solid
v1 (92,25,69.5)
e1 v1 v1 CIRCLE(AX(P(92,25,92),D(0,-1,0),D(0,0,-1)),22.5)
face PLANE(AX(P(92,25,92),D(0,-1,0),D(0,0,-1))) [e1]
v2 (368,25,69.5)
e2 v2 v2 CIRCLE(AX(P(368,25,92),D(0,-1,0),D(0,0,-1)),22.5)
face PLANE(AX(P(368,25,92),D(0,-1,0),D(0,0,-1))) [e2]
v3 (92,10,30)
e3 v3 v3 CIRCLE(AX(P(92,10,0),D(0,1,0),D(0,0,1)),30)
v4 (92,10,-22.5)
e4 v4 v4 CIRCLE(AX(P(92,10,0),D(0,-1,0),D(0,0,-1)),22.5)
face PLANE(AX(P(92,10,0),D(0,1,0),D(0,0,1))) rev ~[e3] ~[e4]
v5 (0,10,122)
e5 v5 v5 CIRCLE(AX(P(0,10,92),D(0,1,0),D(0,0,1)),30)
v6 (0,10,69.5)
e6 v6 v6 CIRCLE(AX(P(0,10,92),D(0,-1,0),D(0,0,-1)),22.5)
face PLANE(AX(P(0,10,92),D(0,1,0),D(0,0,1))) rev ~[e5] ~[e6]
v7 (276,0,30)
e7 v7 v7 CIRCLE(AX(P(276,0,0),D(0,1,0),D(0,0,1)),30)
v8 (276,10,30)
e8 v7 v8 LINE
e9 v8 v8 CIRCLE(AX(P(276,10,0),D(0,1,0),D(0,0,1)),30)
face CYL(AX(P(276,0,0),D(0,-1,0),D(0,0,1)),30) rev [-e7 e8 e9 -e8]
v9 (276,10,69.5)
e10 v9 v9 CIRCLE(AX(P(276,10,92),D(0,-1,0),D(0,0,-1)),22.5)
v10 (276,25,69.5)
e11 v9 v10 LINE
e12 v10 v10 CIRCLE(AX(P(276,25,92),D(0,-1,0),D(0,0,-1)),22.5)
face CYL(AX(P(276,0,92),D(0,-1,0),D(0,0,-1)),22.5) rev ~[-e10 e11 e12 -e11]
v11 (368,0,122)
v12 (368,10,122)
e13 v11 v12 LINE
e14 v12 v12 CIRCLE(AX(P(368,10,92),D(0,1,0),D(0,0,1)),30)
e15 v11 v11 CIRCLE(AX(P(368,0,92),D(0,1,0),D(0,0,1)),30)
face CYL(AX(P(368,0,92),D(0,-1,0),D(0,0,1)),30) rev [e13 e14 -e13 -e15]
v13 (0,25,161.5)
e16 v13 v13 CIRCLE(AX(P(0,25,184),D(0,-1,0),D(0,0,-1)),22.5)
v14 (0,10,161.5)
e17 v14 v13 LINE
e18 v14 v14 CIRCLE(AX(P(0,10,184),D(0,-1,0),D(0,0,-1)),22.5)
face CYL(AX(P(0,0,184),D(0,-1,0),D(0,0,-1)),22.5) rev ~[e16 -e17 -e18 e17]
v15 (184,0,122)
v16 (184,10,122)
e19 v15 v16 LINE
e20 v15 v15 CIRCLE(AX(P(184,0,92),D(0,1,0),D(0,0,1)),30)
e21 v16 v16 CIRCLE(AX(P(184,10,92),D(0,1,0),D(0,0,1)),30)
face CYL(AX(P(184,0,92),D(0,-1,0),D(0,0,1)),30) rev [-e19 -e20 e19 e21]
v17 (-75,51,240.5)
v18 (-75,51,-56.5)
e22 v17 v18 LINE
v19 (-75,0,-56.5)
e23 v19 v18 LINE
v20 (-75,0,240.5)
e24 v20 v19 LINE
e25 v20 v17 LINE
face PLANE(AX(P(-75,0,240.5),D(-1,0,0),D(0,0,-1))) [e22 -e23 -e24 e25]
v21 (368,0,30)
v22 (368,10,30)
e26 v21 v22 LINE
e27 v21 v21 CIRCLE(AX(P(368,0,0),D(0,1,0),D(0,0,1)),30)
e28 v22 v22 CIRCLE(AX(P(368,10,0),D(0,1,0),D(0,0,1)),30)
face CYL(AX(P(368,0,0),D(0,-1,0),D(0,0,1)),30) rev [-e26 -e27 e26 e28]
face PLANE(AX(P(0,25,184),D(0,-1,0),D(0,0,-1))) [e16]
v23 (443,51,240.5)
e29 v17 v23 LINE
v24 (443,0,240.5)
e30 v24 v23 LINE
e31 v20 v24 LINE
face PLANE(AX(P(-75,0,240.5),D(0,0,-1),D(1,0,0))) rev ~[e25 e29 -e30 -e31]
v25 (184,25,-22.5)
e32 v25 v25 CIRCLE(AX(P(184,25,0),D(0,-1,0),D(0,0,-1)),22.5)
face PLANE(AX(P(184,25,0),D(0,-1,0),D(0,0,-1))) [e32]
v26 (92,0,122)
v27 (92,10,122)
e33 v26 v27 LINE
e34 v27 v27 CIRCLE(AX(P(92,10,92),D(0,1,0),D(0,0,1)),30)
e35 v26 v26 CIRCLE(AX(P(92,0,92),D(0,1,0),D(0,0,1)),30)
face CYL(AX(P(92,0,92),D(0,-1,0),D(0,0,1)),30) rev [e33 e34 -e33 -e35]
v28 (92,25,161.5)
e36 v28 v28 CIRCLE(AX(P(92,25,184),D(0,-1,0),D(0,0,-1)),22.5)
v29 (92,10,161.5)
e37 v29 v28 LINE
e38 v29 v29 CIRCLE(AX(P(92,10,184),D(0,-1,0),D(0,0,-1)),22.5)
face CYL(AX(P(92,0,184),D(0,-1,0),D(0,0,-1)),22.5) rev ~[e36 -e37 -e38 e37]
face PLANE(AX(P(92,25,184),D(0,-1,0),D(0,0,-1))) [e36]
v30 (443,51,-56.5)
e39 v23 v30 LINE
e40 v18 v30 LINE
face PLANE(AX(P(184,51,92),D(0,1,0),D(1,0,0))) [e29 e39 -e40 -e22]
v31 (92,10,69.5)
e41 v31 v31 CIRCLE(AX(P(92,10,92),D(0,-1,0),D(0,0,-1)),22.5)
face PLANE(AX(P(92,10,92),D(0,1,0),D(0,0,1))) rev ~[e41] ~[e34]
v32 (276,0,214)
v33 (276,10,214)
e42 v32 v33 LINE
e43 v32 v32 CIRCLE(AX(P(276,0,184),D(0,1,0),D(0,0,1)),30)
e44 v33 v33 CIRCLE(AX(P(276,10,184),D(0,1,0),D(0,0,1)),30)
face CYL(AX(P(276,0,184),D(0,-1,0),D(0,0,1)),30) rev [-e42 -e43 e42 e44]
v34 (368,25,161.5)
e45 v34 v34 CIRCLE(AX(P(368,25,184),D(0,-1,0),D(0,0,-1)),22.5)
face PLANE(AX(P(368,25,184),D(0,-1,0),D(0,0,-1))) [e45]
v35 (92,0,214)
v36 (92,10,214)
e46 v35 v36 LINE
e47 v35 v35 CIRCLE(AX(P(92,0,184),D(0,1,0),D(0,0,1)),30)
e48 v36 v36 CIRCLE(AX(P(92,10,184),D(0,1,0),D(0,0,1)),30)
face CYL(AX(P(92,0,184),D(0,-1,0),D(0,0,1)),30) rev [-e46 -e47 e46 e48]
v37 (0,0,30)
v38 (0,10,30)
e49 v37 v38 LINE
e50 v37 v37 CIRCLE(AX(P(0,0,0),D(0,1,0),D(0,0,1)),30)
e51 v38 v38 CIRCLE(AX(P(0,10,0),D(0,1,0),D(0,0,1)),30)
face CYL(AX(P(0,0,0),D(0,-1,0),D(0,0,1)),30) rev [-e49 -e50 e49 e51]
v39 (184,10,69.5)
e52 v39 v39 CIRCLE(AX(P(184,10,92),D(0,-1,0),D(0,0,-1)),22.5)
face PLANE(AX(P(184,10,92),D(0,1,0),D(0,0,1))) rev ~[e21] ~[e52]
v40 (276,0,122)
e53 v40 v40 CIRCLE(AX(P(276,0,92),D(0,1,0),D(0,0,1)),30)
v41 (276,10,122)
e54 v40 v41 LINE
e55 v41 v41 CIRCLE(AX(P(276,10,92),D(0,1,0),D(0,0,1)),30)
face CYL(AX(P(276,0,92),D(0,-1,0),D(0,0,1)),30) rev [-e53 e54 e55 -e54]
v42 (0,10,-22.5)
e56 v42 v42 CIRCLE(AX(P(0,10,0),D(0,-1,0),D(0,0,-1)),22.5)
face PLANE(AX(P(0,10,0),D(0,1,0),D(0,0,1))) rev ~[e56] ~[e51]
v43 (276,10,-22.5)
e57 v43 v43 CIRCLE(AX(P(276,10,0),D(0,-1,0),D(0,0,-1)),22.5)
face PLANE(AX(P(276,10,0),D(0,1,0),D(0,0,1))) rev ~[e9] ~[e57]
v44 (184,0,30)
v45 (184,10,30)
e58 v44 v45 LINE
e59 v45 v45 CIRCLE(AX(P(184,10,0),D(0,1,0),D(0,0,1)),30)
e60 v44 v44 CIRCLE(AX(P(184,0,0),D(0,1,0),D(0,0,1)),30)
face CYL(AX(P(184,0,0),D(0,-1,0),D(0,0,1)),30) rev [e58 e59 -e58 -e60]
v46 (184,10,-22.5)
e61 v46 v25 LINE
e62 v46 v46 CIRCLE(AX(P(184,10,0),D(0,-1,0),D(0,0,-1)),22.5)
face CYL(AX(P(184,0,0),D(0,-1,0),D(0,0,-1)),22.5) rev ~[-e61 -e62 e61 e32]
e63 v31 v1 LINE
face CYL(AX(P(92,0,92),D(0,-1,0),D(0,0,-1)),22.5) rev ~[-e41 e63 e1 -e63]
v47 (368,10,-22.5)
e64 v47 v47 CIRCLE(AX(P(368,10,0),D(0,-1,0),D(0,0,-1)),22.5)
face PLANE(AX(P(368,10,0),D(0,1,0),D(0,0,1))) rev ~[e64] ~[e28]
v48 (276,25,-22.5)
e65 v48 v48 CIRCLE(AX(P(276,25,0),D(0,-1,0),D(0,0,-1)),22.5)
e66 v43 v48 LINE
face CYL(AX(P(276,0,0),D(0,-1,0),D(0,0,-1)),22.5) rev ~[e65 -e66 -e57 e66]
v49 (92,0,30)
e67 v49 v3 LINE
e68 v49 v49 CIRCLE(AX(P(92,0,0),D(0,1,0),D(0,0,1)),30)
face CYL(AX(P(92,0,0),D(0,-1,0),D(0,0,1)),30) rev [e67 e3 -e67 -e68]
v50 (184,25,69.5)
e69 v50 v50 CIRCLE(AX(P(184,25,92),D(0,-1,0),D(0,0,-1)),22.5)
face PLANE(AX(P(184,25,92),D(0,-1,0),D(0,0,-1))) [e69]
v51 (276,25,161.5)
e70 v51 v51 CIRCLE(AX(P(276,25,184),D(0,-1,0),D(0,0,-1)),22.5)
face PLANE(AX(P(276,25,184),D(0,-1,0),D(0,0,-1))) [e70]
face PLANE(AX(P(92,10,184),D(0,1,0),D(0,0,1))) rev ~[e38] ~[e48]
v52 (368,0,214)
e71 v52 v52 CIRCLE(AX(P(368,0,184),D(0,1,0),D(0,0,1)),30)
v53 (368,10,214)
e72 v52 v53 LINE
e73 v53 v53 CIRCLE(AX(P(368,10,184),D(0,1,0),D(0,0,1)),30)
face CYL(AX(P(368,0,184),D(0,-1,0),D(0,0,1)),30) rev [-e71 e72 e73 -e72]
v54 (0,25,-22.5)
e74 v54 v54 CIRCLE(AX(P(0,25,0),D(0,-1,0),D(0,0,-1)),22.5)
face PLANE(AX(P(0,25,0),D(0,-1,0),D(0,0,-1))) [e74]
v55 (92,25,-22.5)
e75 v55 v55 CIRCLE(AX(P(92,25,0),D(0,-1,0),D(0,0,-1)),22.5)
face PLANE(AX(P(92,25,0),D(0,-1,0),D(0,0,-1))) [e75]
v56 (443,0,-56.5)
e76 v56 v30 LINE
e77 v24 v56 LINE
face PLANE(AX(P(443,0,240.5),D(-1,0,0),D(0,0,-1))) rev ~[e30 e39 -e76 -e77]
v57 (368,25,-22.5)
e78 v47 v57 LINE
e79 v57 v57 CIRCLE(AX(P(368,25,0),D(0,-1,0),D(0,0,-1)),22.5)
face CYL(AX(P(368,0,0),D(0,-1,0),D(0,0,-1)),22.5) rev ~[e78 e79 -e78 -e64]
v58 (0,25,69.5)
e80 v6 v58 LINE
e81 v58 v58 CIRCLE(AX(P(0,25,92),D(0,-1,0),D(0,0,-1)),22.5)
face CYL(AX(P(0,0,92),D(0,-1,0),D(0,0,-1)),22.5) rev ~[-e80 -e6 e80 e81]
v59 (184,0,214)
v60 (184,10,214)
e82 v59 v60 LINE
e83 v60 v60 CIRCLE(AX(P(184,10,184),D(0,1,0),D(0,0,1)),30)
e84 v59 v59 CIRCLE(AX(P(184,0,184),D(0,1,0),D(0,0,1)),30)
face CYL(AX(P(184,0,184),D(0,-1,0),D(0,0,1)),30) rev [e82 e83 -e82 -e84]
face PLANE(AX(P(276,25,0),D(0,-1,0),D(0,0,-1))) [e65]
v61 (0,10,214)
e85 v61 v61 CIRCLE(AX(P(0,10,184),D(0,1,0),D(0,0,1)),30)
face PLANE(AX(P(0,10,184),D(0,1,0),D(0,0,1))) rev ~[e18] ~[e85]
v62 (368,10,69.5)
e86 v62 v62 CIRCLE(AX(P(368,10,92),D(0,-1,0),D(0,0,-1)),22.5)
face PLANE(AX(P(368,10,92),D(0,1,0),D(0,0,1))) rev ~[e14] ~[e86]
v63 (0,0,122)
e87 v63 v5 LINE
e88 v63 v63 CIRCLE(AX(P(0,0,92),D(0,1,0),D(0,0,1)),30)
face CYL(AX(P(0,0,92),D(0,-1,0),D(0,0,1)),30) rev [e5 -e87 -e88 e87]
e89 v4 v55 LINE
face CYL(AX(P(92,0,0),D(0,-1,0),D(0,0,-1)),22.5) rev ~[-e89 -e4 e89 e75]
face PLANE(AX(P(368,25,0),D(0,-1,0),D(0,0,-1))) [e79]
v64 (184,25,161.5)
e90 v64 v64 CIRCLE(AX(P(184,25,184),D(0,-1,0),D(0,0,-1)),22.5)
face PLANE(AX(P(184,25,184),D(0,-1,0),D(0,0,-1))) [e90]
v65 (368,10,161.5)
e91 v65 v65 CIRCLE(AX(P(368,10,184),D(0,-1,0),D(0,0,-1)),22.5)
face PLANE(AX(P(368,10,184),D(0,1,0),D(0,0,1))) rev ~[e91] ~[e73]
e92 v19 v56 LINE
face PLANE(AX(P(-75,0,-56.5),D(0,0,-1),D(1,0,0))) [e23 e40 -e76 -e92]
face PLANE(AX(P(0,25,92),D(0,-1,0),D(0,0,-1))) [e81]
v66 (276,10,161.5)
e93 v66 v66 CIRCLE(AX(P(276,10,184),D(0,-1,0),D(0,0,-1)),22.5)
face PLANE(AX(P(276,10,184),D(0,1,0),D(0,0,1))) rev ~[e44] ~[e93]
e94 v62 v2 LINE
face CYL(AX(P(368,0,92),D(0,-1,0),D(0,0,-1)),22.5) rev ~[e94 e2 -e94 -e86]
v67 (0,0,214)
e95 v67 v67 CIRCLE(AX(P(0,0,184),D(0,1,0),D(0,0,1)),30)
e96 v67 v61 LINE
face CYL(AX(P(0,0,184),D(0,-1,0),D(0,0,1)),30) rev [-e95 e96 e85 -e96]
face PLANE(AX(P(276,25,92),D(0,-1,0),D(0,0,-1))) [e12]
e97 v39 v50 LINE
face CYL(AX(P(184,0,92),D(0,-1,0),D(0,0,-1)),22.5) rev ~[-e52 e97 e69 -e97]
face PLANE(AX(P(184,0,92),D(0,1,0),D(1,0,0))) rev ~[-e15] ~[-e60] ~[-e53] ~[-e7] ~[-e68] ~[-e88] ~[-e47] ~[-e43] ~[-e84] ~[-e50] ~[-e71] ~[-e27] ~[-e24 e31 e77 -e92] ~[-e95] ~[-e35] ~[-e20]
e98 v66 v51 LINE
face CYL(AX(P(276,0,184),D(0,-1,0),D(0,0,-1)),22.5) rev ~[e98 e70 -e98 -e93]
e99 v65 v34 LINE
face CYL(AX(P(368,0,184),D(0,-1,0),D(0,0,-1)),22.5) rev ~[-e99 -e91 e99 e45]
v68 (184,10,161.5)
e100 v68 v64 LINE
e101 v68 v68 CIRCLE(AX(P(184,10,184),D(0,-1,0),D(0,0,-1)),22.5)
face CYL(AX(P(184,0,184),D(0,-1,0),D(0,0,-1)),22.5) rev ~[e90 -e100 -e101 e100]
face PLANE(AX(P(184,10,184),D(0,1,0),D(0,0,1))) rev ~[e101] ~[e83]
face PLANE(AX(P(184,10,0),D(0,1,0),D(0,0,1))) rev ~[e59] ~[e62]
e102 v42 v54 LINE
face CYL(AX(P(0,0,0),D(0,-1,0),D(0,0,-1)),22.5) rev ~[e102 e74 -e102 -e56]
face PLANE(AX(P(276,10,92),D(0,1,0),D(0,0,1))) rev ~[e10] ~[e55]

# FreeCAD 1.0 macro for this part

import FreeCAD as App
import Part
import Sketcher


def add_polygon(sketch, points):
    """Adds a closed chain of lines whose ends are joined by coincident constraints."""
    first, n = sketch.GeometryCount, len(points)
    for a, b in zip(points, points[1:] + points[:1]):
        sketch.addGeometry(Part.LineSegment(App.Vector(*a, 0), App.Vector(*b, 0)), False)
    for i in range(n):
        sketch.addConstraint(Sketcher.Constraint("Coincident", first + i, 2, first + (i + 1) % n, 1))

doc = App.newDocument("Part")
body = doc.addObject("PartDesign::Body", "Body")

# Sketch on XZ plane
sketch1 = body.newObject("Sketcher::SketchObject", "Sketch")
sketch1.AttachmentSupport = (doc.getObject("XZ_Plane"), [""])
sketch1.MapMode = "FlatFace"
add_polygon(sketch1, [(-75, -56), (-75, 240), (443, 240), (443, -56)])  # lines 0-3
sketch1.addConstraint([
    Sketcher.Constraint("Vertical", 0),
    Sketcher.Constraint("Horizontal", 1),
    Sketcher.Constraint("Vertical", 2),
    Sketcher.Constraint("Horizontal", 3),
    Sketcher.Constraint("DistanceX", 1, 1, 1, 2, 518.0),
    Sketcher.Constraint("DistanceY", 0, 1, 0, 2, 297.0),
    Sketcher.Constraint("DistanceX", 0, 2, -1, 1, 75.0),
    Sketcher.Constraint("DistanceY", -1, 1, 0, 2, 240.5),
])
pad1 = body.newObject("PartDesign::Pad", "Pad")
pad1.Profile = sketch1
pad1.Length = 51
pad1.Reversed = True

# Sketch on XZ plane
sketch2 = body.newObject("Sketcher::SketchObject", "Sketch001")
sketch2.AttachmentSupport = (doc.getObject("XZ_Plane"), [""])
sketch2.MapMode = "FlatFace"
sketch2.addGeometry([
    Part.Circle(App.Vector(0, 0, 0), App.Vector(0, 0, 1), 30),  # 0
    Part.Circle(App.Vector(92, 0, 0), App.Vector(0, 0, 1), 30),  # 1
    Part.Circle(App.Vector(184, 0, 0), App.Vector(0, 0, 1), 30),  # 2
    Part.Circle(App.Vector(276, 0, 0), App.Vector(0, 0, 1), 30),  # 3
    Part.Circle(App.Vector(368, 0, 0), App.Vector(0, 0, 1), 30),  # 4
    Part.Circle(App.Vector(0, 92, 0), App.Vector(0, 0, 1), 30),  # 5
    Part.Circle(App.Vector(92, 92, 0), App.Vector(0, 0, 1), 30),  # 6
    Part.Circle(App.Vector(184, 92, 0), App.Vector(0, 0, 1), 30),  # 7
    Part.Circle(App.Vector(276, 92, 0), App.Vector(0, 0, 1), 30),  # 8
    Part.Circle(App.Vector(368, 92, 0), App.Vector(0, 0, 1), 30),  # 9
    Part.Circle(App.Vector(0, 184, 0), App.Vector(0, 0, 1), 30),  # 10
    Part.Circle(App.Vector(92, 184, 0), App.Vector(0, 0, 1), 30),  # 11
    Part.Circle(App.Vector(184, 184, 0), App.Vector(0, 0, 1), 30),  # 12
    Part.Circle(App.Vector(276, 184, 0), App.Vector(0, 0, 1), 30),  # 13
    Part.Circle(App.Vector(368, 184, 0), App.Vector(0, 0, 1), 30),  # 14
], False)
sketch2.addConstraint([
    Sketcher.Constraint("Coincident", 0, 3, -1, 1),
    Sketcher.Constraint("Equal", 0, 1),
    Sketcher.Constraint("Equal", 1, 2),
    Sketcher.Constraint("Equal", 2, 3),
    Sketcher.Constraint("Equal", 3, 4),
    Sketcher.Constraint("Equal", 4, 5),
    Sketcher.Constraint("Equal", 5, 6),
    Sketcher.Constraint("Equal", 6, 7),
    Sketcher.Constraint("Equal", 7, 8),
    Sketcher.Constraint("Equal", 8, 9),
    Sketcher.Constraint("Equal", 9, 10),
    Sketcher.Constraint("Equal", 10, 11),
    Sketcher.Constraint("Equal", 11, 12),
    Sketcher.Constraint("Equal", 12, 13),
    Sketcher.Constraint("Equal", 13, 14),
    Sketcher.Constraint("PointOnObject", 1, 3, -1),
    Sketcher.Constraint("PointOnObject", 2, 3, -1),
    Sketcher.Constraint("PointOnObject", 3, 3, -1),
    Sketcher.Constraint("PointOnObject", 4, 3, -1),
    Sketcher.Constraint("PointOnObject", 5, 3, -2),
    Sketcher.Constraint("PointOnObject", 10, 3, -2),
    Sketcher.Constraint("Horizontal", 5, 3, 6, 3),
    Sketcher.Constraint("Horizontal", 6, 3, 7, 3),
    Sketcher.Constraint("Horizontal", 7, 3, 8, 3),
    Sketcher.Constraint("Horizontal", 8, 3, 9, 3),
    Sketcher.Constraint("Horizontal", 10, 3, 11, 3),
    Sketcher.Constraint("Horizontal", 11, 3, 12, 3),
    Sketcher.Constraint("Horizontal", 12, 3, 13, 3),
    Sketcher.Constraint("Horizontal", 13, 3, 14, 3),
    Sketcher.Constraint("Vertical", 1, 3, 6, 3),
    Sketcher.Constraint("Vertical", 2, 3, 7, 3),
    Sketcher.Constraint("Vertical", 3, 3, 8, 3),
    Sketcher.Constraint("Vertical", 4, 3, 9, 3),
    Sketcher.Constraint("Vertical", 6, 3, 11, 3),
    Sketcher.Constraint("Vertical", 7, 3, 12, 3),
    Sketcher.Constraint("Vertical", 8, 3, 13, 3),
    Sketcher.Constraint("Vertical", 9, 3, 14, 3),
    Sketcher.Constraint("Diameter", 0, 60.0),
    Sketcher.Constraint("DistanceX", -1, 1, 1, 3, 92.0),
    Sketcher.Constraint("DistanceX", -1, 1, 2, 3, 184.0),
    Sketcher.Constraint("DistanceX", -1, 1, 3, 3, 276.0),
    Sketcher.Constraint("DistanceX", -1, 1, 4, 3, 368.0),
    Sketcher.Constraint("DistanceY", -1, 1, 5, 3, 92.0),
    Sketcher.Constraint("DistanceY", -1, 1, 10, 3, 184.0),
])
pocket1 = body.newObject("PartDesign::Pocket", "Pocket")
pocket1.Profile = sketch2
pocket1.Length = 10

# Sketch on XZ plane
sketch3 = body.newObject("Sketcher::SketchObject", "Sketch002")
sketch3.AttachmentSupport = (doc.getObject("XZ_Plane"), [""])
sketch3.MapMode = "FlatFace"
sketch3.addGeometry([
    Part.Circle(App.Vector(0, 0, 0), App.Vector(0, 0, 1), 22),  # 0
    Part.Circle(App.Vector(92, 0, 0), App.Vector(0, 0, 1), 22),  # 1
    Part.Circle(App.Vector(184, 0, 0), App.Vector(0, 0, 1), 22),  # 2
    Part.Circle(App.Vector(276, 0, 0), App.Vector(0, 0, 1), 22),  # 3
    Part.Circle(App.Vector(368, 0, 0), App.Vector(0, 0, 1), 22),  # 4
    Part.Circle(App.Vector(92, 92, 0), App.Vector(0, 0, 1), 22),  # 5
    Part.Circle(App.Vector(184, 92, 0), App.Vector(0, 0, 1), 22),  # 6
    Part.Circle(App.Vector(276, 92, 0), App.Vector(0, 0, 1), 22),  # 7
    Part.Circle(App.Vector(368, 92, 0), App.Vector(0, 0, 1), 22),  # 8
    Part.Circle(App.Vector(92, 184, 0), App.Vector(0, 0, 1), 22),  # 9
    Part.Circle(App.Vector(184, 184, 0), App.Vector(0, 0, 1), 22),  # 10
    Part.Circle(App.Vector(276, 184, 0), App.Vector(0, 0, 1), 22),  # 11
    Part.Circle(App.Vector(368, 184, 0), App.Vector(0, 0, 1), 22),  # 12
    Part.Circle(App.Vector(0, 92, 0), App.Vector(0, 0, 1), 22),  # 13
    Part.Circle(App.Vector(0, 184, 0), App.Vector(0, 0, 1), 22),  # 14
], False)
sketch3.addConstraint([
    Sketcher.Constraint("Coincident", 0, 3, -1, 1),
    Sketcher.Constraint("Equal", 0, 1),
    Sketcher.Constraint("Equal", 1, 2),
    Sketcher.Constraint("Equal", 2, 3),
    Sketcher.Constraint("Equal", 3, 4),
    Sketcher.Constraint("Equal", 4, 5),
    Sketcher.Constraint("Equal", 5, 6),
    Sketcher.Constraint("Equal", 6, 7),
    Sketcher.Constraint("Equal", 7, 8),
    Sketcher.Constraint("Equal", 8, 9),
    Sketcher.Constraint("Equal", 9, 10),
    Sketcher.Constraint("Equal", 10, 11),
    Sketcher.Constraint("Equal", 11, 12),
    Sketcher.Constraint("Equal", 12, 13),
    Sketcher.Constraint("Equal", 13, 14),
    Sketcher.Constraint("PointOnObject", 1, 3, -1),
    Sketcher.Constraint("PointOnObject", 2, 3, -1),
    Sketcher.Constraint("PointOnObject", 3, 3, -1),
    Sketcher.Constraint("PointOnObject", 4, 3, -1),
    Sketcher.Constraint("PointOnObject", 13, 3, -2),
    Sketcher.Constraint("PointOnObject", 14, 3, -2),
    Sketcher.Constraint("Horizontal", 5, 3, 6, 3),
    Sketcher.Constraint("Horizontal", 6, 3, 7, 3),
    Sketcher.Constraint("Horizontal", 7, 3, 8, 3),
    Sketcher.Constraint("Horizontal", 9, 3, 10, 3),
    Sketcher.Constraint("Horizontal", 10, 3, 11, 3),
    Sketcher.Constraint("Horizontal", 11, 3, 12, 3),
    Sketcher.Constraint("Horizontal", 8, 3, 13, 3),
    Sketcher.Constraint("Horizontal", 12, 3, 14, 3),
    Sketcher.Constraint("Vertical", 1, 3, 5, 3),
    Sketcher.Constraint("Vertical", 2, 3, 6, 3),
    Sketcher.Constraint("Vertical", 3, 3, 7, 3),
    Sketcher.Constraint("Vertical", 4, 3, 8, 3),
    Sketcher.Constraint("Vertical", 5, 3, 9, 3),
    Sketcher.Constraint("Vertical", 6, 3, 10, 3),
    Sketcher.Constraint("Vertical", 7, 3, 11, 3),
    Sketcher.Constraint("Vertical", 8, 3, 12, 3),
    Sketcher.Constraint("Diameter", 0, 45.0),
    Sketcher.Constraint("DistanceX", -1, 1, 1, 3, 92.0),
    Sketcher.Constraint("DistanceX", -1, 1, 2, 3, 184.0),
    Sketcher.Constraint("DistanceX", -1, 1, 3, 3, 276.0),
    Sketcher.Constraint("DistanceX", -1, 1, 4, 3, 368.0),
    Sketcher.Constraint("DistanceY", -1, 1, 5, 3, 92.0),
    Sketcher.Constraint("DistanceY", -1, 1, 9, 3, 184.0),
])
pocket2 = body.newObject("PartDesign::Pocket", "Pocket001")
pocket2.Profile = sketch3
pocket2.Length = 25

doc.recompute()
